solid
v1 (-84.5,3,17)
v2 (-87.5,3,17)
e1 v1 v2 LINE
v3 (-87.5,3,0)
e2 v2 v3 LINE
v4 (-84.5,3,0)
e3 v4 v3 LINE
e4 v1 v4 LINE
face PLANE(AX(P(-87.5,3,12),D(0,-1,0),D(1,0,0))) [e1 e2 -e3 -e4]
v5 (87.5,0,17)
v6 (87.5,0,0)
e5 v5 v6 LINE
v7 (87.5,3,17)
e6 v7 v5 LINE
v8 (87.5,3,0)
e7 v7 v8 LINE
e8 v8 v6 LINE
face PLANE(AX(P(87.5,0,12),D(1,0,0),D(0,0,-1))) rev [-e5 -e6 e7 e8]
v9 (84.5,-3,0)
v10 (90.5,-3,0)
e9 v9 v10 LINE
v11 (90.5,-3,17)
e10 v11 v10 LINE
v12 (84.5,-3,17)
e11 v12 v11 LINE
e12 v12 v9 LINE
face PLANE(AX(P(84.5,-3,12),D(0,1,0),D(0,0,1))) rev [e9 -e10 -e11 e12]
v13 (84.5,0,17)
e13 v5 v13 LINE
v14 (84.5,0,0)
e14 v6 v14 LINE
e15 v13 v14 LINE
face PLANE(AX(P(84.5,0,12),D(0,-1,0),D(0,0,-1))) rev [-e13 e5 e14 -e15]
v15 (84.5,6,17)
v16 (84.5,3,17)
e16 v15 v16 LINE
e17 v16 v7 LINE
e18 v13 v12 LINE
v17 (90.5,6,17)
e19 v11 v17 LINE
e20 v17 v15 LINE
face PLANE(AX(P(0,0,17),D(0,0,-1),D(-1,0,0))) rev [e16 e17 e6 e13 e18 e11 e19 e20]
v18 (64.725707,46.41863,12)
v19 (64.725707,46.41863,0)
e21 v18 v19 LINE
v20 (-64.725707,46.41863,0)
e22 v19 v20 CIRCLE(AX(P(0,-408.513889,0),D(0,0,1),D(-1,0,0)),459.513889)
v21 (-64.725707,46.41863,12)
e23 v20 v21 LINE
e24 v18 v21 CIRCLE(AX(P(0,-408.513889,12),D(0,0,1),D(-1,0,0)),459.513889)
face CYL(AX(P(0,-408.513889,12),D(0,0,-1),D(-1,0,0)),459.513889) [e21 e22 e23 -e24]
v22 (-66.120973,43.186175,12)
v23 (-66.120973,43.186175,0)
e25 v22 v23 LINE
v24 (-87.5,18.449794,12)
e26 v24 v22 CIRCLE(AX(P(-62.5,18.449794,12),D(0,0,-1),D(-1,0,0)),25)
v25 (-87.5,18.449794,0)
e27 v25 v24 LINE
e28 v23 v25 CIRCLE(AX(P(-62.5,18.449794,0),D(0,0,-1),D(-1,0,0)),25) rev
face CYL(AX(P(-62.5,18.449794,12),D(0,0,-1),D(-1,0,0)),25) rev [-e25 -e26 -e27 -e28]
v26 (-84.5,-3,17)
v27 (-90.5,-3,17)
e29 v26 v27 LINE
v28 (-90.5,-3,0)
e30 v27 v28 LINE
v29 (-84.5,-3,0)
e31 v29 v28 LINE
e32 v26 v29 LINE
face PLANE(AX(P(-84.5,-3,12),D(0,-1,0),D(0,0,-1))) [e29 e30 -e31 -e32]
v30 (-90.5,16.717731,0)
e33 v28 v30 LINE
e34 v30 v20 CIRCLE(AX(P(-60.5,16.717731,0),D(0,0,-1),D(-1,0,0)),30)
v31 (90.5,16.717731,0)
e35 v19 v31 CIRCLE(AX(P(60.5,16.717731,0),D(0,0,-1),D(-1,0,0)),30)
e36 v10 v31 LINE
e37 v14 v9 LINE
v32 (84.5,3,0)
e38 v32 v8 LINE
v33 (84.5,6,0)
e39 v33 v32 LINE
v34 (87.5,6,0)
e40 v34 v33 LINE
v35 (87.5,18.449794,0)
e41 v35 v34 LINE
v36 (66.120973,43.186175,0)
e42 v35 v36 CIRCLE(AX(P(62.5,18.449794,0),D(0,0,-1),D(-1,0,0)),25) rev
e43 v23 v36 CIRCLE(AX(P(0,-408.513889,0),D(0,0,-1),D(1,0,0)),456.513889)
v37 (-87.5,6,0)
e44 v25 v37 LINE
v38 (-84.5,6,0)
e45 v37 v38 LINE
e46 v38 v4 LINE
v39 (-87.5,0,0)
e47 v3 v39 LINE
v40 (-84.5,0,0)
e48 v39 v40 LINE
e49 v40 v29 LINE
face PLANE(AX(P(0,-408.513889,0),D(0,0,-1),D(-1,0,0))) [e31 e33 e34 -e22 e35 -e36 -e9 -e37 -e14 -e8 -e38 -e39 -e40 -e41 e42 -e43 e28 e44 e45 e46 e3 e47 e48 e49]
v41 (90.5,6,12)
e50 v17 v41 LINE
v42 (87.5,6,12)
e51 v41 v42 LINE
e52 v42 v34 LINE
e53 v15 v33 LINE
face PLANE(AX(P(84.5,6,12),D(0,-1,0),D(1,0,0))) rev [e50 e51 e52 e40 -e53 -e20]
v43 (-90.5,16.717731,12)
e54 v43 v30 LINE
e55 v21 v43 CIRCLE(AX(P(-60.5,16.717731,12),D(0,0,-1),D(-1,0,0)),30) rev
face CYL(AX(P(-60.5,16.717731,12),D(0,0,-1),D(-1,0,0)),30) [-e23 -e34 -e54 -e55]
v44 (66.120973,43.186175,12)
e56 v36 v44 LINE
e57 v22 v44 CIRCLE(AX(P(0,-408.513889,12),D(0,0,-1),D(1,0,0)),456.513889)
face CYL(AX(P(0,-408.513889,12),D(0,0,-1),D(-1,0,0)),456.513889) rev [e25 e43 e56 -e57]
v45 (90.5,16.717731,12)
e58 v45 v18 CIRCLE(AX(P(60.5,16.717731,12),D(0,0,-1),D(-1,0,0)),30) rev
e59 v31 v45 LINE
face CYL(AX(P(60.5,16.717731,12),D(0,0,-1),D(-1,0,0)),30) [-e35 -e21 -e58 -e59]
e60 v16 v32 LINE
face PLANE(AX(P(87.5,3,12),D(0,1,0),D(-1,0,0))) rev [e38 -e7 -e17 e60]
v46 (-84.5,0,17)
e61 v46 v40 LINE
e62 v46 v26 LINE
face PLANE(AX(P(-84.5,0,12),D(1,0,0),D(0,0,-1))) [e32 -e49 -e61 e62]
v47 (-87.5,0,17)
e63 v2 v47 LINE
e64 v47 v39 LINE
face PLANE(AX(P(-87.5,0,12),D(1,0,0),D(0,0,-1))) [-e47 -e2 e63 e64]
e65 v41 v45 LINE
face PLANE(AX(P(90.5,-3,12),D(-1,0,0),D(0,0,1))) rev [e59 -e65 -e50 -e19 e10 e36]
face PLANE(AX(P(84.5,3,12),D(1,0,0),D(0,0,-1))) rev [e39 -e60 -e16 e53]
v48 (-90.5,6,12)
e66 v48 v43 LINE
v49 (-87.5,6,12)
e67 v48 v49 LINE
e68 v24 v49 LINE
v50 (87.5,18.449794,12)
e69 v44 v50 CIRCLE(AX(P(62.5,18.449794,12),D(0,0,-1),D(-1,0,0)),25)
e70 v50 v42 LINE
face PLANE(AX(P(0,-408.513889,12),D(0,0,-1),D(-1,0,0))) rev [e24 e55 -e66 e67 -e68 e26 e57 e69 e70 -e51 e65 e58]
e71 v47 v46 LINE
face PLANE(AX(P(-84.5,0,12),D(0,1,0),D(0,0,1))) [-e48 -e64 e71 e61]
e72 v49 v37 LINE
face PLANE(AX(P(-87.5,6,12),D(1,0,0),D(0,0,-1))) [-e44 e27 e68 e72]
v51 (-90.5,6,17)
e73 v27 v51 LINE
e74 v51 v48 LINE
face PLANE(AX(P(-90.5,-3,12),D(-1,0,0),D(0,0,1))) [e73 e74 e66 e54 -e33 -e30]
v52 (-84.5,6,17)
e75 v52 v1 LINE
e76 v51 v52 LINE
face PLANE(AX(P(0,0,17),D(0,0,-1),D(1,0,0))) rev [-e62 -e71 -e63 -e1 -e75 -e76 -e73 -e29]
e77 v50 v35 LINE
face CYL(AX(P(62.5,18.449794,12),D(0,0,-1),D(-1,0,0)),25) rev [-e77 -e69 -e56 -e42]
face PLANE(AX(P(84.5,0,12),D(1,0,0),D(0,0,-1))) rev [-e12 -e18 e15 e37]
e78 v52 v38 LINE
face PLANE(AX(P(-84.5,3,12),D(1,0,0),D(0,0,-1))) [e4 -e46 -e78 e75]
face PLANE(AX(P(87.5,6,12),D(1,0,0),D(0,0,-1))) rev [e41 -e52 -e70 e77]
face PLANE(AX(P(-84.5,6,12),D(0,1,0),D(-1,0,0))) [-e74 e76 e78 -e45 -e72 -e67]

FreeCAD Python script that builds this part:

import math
import FreeCAD as App
import Part
import Sketcher


def edges_at(feature, points):
    """Names of the edges that pass closest to the given points."""
    edges = feature.Shape.Edges
    near = lambda p: min(range(len(edges)), key=lambda i: edges[i].distToShape(Part.Vertex(*p))[0])
    return sorted({f"Edge{near(p) + 1}" for p in points})

doc = App.newDocument("Part")
params = doc.addObject("Spreadsheet::Sheet", "Params")
for row, (alias, value) in enumerate([
    ("sketch1_width", "3 mm"),
    ("sketch1_width2", "6 mm"),
    ("sketch1_height", "45 mm"),
    ("pad1_length", "12 mm"),
    ("sketch2_width", "6 mm"),
    ("sketch2_width2", "3 mm"),
    ("pad2_length", "5 mm"),
    ("fillet_radius", "25 mm"),
    ("fillet2_radius", "30 mm"),
], start=1):
    params.set(f"A{row}", alias)
    params.set(f"B{row}", "=" + value)
    params.setAlias(f"B{row}", alias)

body = doc.addObject("PartDesign::Body", "Body")

# Sketch on XY plane
sketch1 = doc.addObject("Sketcher::SketchObject", "Sketch")
body.addObject(sketch1)
sketch1.AttachmentSupport = (doc.XY_Plane, [""])
sketch1.MapMode = "FlatFace"
sketch1.addGeometry([
    Part.LineSegment(App.Vector(87.5, 0, 0), App.Vector(84.5, 0, 0)),  # 0
    Part.LineSegment(App.Vector(84.5, 0, 0), App.Vector(84.5, -3, 0)),  # 1
    Part.LineSegment(App.Vector(84.5, -3, 0), App.Vector(90.5, -3, 0)),  # 2
    Part.LineSegment(App.Vector(90.5, -3, 0), App.Vector(90.5, 42, 0)),  # 3
    Part.ArcOfCircle(Part.Circle(App.Vector(0, -408.5, 0), App.Vector(0, 0, 1), 459.5), math.radians(78.64), math.radians(90)),  # 4
    Part.LineSegment(App.Vector(0, 51, 0), App.Vector(0, 48, 0)),  # 5
    Part.ArcOfCircle(Part.Circle(App.Vector(0, -408.5, 0), App.Vector(0, 0, 1), 456.5), math.radians(78.95), math.radians(90)),  # 6
    Part.LineSegment(App.Vector(87.5, 39.5, 0), App.Vector(87.5, 6, 0)),  # 7
    Part.LineSegment(App.Vector(87.5, 6, 0), App.Vector(84.5, 6, 0)),  # 8
    Part.LineSegment(App.Vector(84.5, 6, 0), App.Vector(84.5, 3, 0)),  # 9
    Part.LineSegment(App.Vector(84.5, 3, 0), App.Vector(87.5, 3, 0)),  # 10
    Part.LineSegment(App.Vector(87.5, 3, 0), App.Vector(87.5, 0, 0)),  # 11
], False)
sketch1.addConstraint([
    Sketcher.Constraint("Coincident", 0, 2, 1, 1),
    Sketcher.Constraint("Coincident", 1, 2, 2, 1),
    Sketcher.Constraint("Coincident", 2, 2, 3, 1),
    Sketcher.Constraint("Coincident", 3, 2, 4, 1),
    Sketcher.Constraint("Coincident", 4, 2, 5, 1),
    Sketcher.Constraint("Coincident", 5, 2, 6, 2),
    Sketcher.Constraint("Coincident", 6, 1, 7, 1),
    Sketcher.Constraint("Coincident", 7, 2, 8, 1),
    Sketcher.Constraint("Coincident", 8, 2, 9, 1),
    Sketcher.Constraint("Coincident", 9, 2, 10, 1),
    Sketcher.Constraint("Coincident", 10, 2, 11, 1),
    Sketcher.Constraint("Coincident", 11, 2, 0, 1),
    Sketcher.Constraint("Horizontal", 0),
    Sketcher.Constraint("Vertical", 1),
    Sketcher.Constraint("Horizontal", 2),
    Sketcher.Constraint("Vertical", 3),
    Sketcher.Constraint("Vertical", 5),
    Sketcher.Constraint("Vertical", 7),
    Sketcher.Constraint("Horizontal", 8),
    Sketcher.Constraint("Vertical", 9),
    Sketcher.Constraint("Horizontal", 10),
    Sketcher.Constraint("Vertical", 11),
    Sketcher.Constraint("Coincident", 6, 3, 4, 3),
    Sketcher.Constraint("Symmetric", 1, 2, 9, 2, -1),
    Sketcher.Constraint("PointOnObject", 4, 3, -2),
    Sketcher.Constraint("PointOnObject", 0, 2, -1),
    Sketcher.Constraint("PointOnObject", 5, 2, -2),
    Sketcher.Constraint("Vertical", 7, 2, 10, 2),
    Sketcher.Constraint("Equal", 10, 1),
    Sketcher.Constraint("Equal", 1, 5),
    Sketcher.Constraint("Equal", 5, 9),
    Sketcher.Constraint("DistanceX", 0, 2, 0, 1, 3.0),
    Sketcher.Constraint("DistanceX", 2, 1, 2, 2, 6.0),
    Sketcher.Constraint("DistanceY", 3, 1, 3, 2, 45.0),
    Sketcher.Constraint("DistanceY", -1, 1, 4, 2, 51.0),
    Sketcher.Constraint("DistanceX", -1, 1, 0, 2, 84.5),
])
sketch1.setExpression("Constraints[31]", "Params.sketch1_width")
sketch1.setExpression("Constraints[32]", "Params.sketch1_width2")
sketch1.setExpression("Constraints[33]", "Params.sketch1_height")
pad1 = doc.addObject("PartDesign::Pad", "Pad")
body.addObject(pad1)
pad1.Profile = sketch1
pad1.setExpression("Length", "Params.pad1_length")

# Sketch on XY plane
sketch2 = doc.addObject("Sketcher::SketchObject", "Sketch001")
body.addObject(sketch2)
sketch2.AttachmentSupport = (doc.XY_Plane, [""])
sketch2.MapMode = "FlatFace"
sketch2.AttachmentOffset = App.Placement(App.Vector(0, 0, 12), App.Rotation())
sketch2.addGeometry([
    Part.LineSegment(App.Vector(84.5, -3, 0), App.Vector(90.5, -3, 0)),  # 0
    Part.LineSegment(App.Vector(90.5, -3, 0), App.Vector(90.5, 6, 0)),  # 1
    Part.LineSegment(App.Vector(90.5, 6, 0), App.Vector(84.5, 6, 0)),  # 2
    Part.LineSegment(App.Vector(84.5, 6, 0), App.Vector(84.5, 3, 0)),  # 3
    Part.LineSegment(App.Vector(84.5, 3, 0), App.Vector(87.5, 3, 0)),  # 4
    Part.LineSegment(App.Vector(87.5, 3, 0), App.Vector(87.5, 0, 0)),  # 5
    Part.LineSegment(App.Vector(87.5, 0, 0), App.Vector(84.5, 0, 0)),  # 6
    Part.LineSegment(App.Vector(84.5, 0, 0), App.Vector(84.5, -3, 0)),  # 7
], False)
sketch2.addConstraint([
    Sketcher.Constraint("Coincident", 0, 2, 1, 1),
    Sketcher.Constraint("Coincident", 1, 2, 2, 1),
    Sketcher.Constraint("Coincident", 2, 2, 3, 1),
    Sketcher.Constraint("Coincident", 3, 2, 4, 1),
    Sketcher.Constraint("Coincident", 4, 2, 5, 1),
    Sketcher.Constraint("Coincident", 5, 2, 6, 1),
    Sketcher.Constraint("Coincident", 6, 2, 7, 1),
    Sketcher.Constraint("Coincident", 7, 2, 0, 1),
    Sketcher.Constraint("Horizontal", 0),
    Sketcher.Constraint("Vertical", 1),
    Sketcher.Constraint("Horizontal", 2),
    Sketcher.Constraint("Vertical", 3),
    Sketcher.Constraint("Horizontal", 4),
    Sketcher.Constraint("Vertical", 5),
    Sketcher.Constraint("Horizontal", 6),
    Sketcher.Constraint("Vertical", 7),
    Sketcher.Constraint("Symmetric", 3, 2, 7, 2, -1),
    Sketcher.Constraint("PointOnObject", 5, 2, -1),
    Sketcher.Constraint("Equal", 6, 3),
    Sketcher.Constraint("Equal", 3, 5),
    Sketcher.Constraint("DistanceX", 0, 1, 0, 2, 6.0),
    Sketcher.Constraint("DistanceX", 4, 1, 4, 2, 3.0),
    Sketcher.Constraint("DistanceX", -1, 1, 0, 2, 90.5),
])
sketch2.setExpression("Constraints[20]", "Params.sketch2_width")
sketch2.setExpression("Constraints[21]", "Params.sketch2_width2")
pad2 = doc.addObject("PartDesign::Pad", "Pad001")
body.addObject(pad2)
pad2.Profile = sketch2
pad2.setExpression("Length", "Params.pad2_length")
doc.recompute()

mirrored = doc.addObject("PartDesign::Mirrored", "Mirrored")
body.addObject(mirrored)
mirrored.Originals = [pad1, pad2]
mirrored.MirrorPlane = (doc.YZ_Plane, [""])
body.Tip = mirrored
doc.recompute()

fillet = doc.addObject("PartDesign::Fillet", "Fillet")
body.addObject(fillet)
fillet.Base = (mirrored, edges_at(mirrored, [(87.5, 39.536, 6), (-87.5, 39.536, 6)]))
fillet.setExpression("Radius", "Params.fillet_radius")
doc.recompute()

fillet2 = doc.addObject("PartDesign::Fillet", "Fillet001")
body.addObject(fillet2)
fillet2.Base = (fillet, edges_at(fillet, [(90.5, 42, 6), (-90.5, 42, 6)]))
fillet2.setExpression("Radius", "Params.fillet2_radius")

doc.recompute()
